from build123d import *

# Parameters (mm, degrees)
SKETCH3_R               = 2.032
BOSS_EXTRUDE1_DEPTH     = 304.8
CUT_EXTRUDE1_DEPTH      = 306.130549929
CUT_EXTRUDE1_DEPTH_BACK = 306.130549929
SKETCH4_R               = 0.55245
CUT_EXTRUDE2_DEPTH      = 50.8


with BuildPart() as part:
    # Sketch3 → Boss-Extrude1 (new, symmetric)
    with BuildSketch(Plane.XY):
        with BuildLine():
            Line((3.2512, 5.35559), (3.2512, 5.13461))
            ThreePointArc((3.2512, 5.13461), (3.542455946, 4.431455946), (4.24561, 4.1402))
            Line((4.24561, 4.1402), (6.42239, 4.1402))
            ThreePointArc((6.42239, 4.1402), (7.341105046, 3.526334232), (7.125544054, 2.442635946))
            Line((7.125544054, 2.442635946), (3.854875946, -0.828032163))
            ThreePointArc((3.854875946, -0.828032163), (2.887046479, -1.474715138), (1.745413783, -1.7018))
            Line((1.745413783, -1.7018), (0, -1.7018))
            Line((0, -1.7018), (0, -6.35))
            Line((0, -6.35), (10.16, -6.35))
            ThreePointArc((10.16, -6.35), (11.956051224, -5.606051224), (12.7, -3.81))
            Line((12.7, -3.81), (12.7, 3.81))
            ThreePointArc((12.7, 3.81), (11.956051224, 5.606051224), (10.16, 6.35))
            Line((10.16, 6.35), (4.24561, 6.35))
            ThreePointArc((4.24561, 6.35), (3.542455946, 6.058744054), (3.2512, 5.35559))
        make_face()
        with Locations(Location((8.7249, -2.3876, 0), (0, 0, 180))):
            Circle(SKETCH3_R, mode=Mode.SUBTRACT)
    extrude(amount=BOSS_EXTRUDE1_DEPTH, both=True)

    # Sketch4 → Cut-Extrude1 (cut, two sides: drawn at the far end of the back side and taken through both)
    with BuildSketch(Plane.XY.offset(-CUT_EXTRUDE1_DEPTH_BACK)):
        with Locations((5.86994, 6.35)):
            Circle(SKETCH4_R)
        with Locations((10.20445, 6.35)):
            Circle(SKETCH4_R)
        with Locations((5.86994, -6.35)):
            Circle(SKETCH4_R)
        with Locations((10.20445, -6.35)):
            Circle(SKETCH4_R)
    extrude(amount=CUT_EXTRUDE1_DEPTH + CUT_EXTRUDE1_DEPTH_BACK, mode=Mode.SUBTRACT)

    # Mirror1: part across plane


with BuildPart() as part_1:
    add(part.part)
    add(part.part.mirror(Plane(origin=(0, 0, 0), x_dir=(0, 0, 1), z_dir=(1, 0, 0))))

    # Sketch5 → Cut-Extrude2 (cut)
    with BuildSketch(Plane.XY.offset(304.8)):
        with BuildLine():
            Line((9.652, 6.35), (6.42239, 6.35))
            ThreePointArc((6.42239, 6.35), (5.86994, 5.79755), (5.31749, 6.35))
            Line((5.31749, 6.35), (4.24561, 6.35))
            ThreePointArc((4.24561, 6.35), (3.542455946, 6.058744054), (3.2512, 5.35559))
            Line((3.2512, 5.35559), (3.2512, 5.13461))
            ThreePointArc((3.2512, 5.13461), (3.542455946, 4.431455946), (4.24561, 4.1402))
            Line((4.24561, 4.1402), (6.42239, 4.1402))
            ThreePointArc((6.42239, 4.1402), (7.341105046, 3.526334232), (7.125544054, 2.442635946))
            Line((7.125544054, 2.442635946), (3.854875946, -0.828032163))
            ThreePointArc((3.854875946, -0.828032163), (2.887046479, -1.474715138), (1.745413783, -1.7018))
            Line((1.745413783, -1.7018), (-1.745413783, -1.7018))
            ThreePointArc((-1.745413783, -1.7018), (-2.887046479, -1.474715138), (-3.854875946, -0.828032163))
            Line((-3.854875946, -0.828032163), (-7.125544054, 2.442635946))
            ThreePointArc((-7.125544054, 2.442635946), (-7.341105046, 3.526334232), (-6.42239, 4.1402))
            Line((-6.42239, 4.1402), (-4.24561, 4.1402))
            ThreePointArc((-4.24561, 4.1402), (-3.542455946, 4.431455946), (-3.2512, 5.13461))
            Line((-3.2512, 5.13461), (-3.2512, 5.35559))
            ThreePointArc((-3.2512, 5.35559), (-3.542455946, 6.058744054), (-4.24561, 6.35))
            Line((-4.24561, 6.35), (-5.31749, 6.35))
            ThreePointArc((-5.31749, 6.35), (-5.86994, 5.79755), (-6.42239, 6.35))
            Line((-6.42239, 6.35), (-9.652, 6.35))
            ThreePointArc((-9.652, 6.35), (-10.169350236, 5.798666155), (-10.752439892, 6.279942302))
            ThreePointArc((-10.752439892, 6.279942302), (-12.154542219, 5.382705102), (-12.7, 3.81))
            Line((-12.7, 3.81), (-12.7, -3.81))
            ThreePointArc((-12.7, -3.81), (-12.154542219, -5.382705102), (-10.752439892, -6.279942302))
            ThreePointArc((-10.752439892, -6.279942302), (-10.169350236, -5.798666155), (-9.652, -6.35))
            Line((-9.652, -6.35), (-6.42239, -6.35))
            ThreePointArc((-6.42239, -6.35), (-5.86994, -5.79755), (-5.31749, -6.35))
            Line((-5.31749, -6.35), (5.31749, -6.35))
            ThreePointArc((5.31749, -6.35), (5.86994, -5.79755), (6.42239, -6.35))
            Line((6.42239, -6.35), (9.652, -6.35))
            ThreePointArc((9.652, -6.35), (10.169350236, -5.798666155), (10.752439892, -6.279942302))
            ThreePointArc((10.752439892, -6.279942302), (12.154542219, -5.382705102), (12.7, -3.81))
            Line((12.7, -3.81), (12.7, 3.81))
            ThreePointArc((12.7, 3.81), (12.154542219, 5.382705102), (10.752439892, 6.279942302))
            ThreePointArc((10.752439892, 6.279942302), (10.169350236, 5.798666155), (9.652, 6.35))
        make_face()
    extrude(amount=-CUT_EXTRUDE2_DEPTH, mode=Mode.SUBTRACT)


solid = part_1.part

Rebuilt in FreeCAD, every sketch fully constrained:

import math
import FreeCAD as App
import Part
import Sketcher
Q = App.Units.Quantity

doc = App.newDocument("Part")
body = doc.addObject("PartDesign::Body", "Body")

# Sketch on XY plane
sketch1 = body.newObject("Sketcher::SketchObject", "Sketch")
sketch1.AttachmentSupport = (doc.getObject("XY_Plane"), [""])
sketch1.MapMode = "FlatFace"
sketch1.addGeometry(Part.LineSegment(App.Vector(3.25, 5.36, 0), App.Vector(3.25, 5.13, 0)), False)
sketch1.addGeometry(Part.ArcOfCircle(Part.Circle(App.Vector(4.25, 5.13, 0), App.Vector(0, 0, 1), 0.99), math.radians(-180), math.radians(-90)), False)
sketch1.addGeometry(Part.LineSegment(App.Vector(4.25, 4.14, 0), App.Vector(6.42, 4.14, 0)), False)
sketch1.addGeometry(Part.ArcOfCircle(Part.Circle(App.Vector(6.42, 3.15, 0), App.Vector(0, 0, 1), 0.99), math.radians(-45), math.radians(90)), False)
sketch1.addGeometry(Part.LineSegment(App.Vector(7.13, 2.44, 0), App.Vector(3.85, -0.83, 0)), False)
sketch1.addGeometry(Part.ArcOfCircle(Part.Circle(App.Vector(1.75, 1.28, 0), App.Vector(0, 0, 1), 2.98), math.radians(-90), math.radians(-45)), False)
sketch1.addGeometry(Part.LineSegment(App.Vector(1.75, -1.7, 0), App.Vector(0, -1.7, 0)), False)
sketch1.addGeometry(Part.LineSegment(App.Vector(0, -1.7, 0), App.Vector(0, -6.35, 0)), False)
sketch1.addGeometry(Part.LineSegment(App.Vector(0, -6.35, 0), App.Vector(10.16, -6.35, 0)), False)
sketch1.addGeometry(Part.ArcOfCircle(Part.Circle(App.Vector(10.16, -3.81, 0), App.Vector(0, 0, 1), 2.54), math.radians(-90), math.radians(0)), False)
sketch1.addGeometry(Part.LineSegment(App.Vector(12.7, -3.81, 0), App.Vector(12.7, 3.81, 0)), False)
sketch1.addGeometry(Part.ArcOfCircle(Part.Circle(App.Vector(10.16, 3.81, 0), App.Vector(0, 0, 1), 2.54), math.radians(0), math.radians(90)), False)
sketch1.addGeometry(Part.LineSegment(App.Vector(10.16, 6.35, 0), App.Vector(4.25, 6.35, 0)), False)
sketch1.addGeometry(Part.ArcOfCircle(Part.Circle(App.Vector(4.25, 5.36, 0), App.Vector(0, 0, 1), 0.99), math.radians(90), math.radians(180)), False)
sketch1.addGeometry(Part.Circle(App.Vector(8.72, -2.39, 0), App.Vector(0, 0, 1), 2.03), False)
sketch1.addConstraint(Sketcher.Constraint("Tangent", 0, 2, 1, 1))
sketch1.addConstraint(Sketcher.Constraint("Tangent", 1, 2, 2, 1))
sketch1.addConstraint(Sketcher.Constraint("Tangent", 2, 2, 3, 2))
sketch1.addConstraint(Sketcher.Constraint("Tangent", 3, 1, 4, 1))
sketch1.addConstraint(Sketcher.Constraint("Tangent", 4, 2, 5, 2))
sketch1.addConstraint(Sketcher.Constraint("Tangent", 5, 1, 6, 1))
sketch1.addConstraint(Sketcher.Constraint("Coincident", 6, 2, 7, 1))
sketch1.addConstraint(Sketcher.Constraint("Coincident", 7, 2, 8, 1))
sketch1.addConstraint(Sketcher.Constraint("Tangent", 8, 2, 9, 1))
sketch1.addConstraint(Sketcher.Constraint("Tangent", 9, 2, 10, 1))
sketch1.addConstraint(Sketcher.Constraint("Tangent", 10, 2, 11, 1))
sketch1.addConstraint(Sketcher.Constraint("Tangent", 11, 2, 12, 1))
sketch1.addConstraint(Sketcher.Constraint("Tangent", 12, 2, 13, 1))
sketch1.addConstraint(Sketcher.Constraint("Tangent", 13, 2, 0, 1))
sketch1.addConstraint(Sketcher.Constraint("Vertical", 0))
sketch1.addConstraint(Sketcher.Constraint("Horizontal", 2))
sketch1.addConstraint(Sketcher.Constraint("Horizontal", 6))
sketch1.addConstraint(Sketcher.Constraint("Vertical", 7))
sketch1.addConstraint(Sketcher.Constraint("Horizontal", 8))
sketch1.addConstraint(Sketcher.Constraint("Vertical", 10))
sketch1.addConstraint(Sketcher.Constraint("Horizontal", 12))
sketch1.addConstraint(Sketcher.Constraint("Equal", 1, 3))
sketch1.addConstraint(Sketcher.Constraint("Equal", 9, 11))
sketch1.addConstraint(Sketcher.Constraint("Equal", 3, 13))
sketch1.addConstraint(Sketcher.Constraint("PointOnObject", 6, 2, -2))
sketch1.addConstraint(Sketcher.Constraint("Radius", 9, Q("0.1 in")))
sketch1.addConstraint(Sketcher.Constraint("Diameter", 14, Q("0.16 in")))
sketch1.addConstraint(Sketcher.Constraint("DistanceX", 8, 1, 8, 2, Q("0.4 in")))
sketch1.addConstraint(Sketcher.Constraint("DistanceY", 10, 1, 10, 2, Q("0.3 in")))
sketch1.addConstraint(Sketcher.Constraint("Angle", 4, Q("-135 deg")))
sketch1.addConstraint(Sketcher.Constraint("DistanceY", 7, 2, 7, 1, Q("0.183 in")))
sketch1.addConstraint(Sketcher.Constraint("DistanceY", 9, 3, -1, 1, Q("0.15 in")))
sketch1.addConstraint(Sketcher.Constraint("DistanceY", 5, 1, 1, 2, Q("0.23 in")))
sketch1.addConstraint(Sketcher.Constraint("DistanceX", 2, 1, 2, 2, Q("0.0857 in")))
sketch1.addConstraint(Sketcher.Constraint("DistanceY", 0, 2, 0, 1, Q("0.0087 in")))
sketch1.addConstraint(Sketcher.Constraint("DistanceY", 14, 3, -1, 1, Q("0.094 in")))
sketch1.addConstraint(Sketcher.Constraint("DistanceX", -1, 1, 0, 2, Q("0.128 in")))
sketch1.addConstraint(Sketcher.Constraint("Radius", 5, Q("2.98323 mm")))
sketch1.addConstraint(Sketcher.Constraint("DistanceX", -1, 1, 14, 3, Q("0.3435 in")))
pad1 = body.newObject("PartDesign::Pad", "Pad")
pad1.Profile = sketch1
pad1.Length = Q("24 in")
pad1.Midplane = True

# Sketch on XY plane
sketch2 = body.newObject("Sketcher::SketchObject", "Sketch001")
sketch2.AttachmentSupport = (doc.getObject("XY_Plane"), [""])
sketch2.MapMode = "FlatFace"
sketch2.addGeometry(Part.Circle(App.Vector(5.9, 6.3, 0), App.Vector(0, 0, 1), 0.6), False)
sketch2.addGeometry(Part.Circle(App.Vector(10.2, 6.3, 0), App.Vector(0, 0, 1), 0.6), False)
sketch2.addGeometry(Part.Circle(App.Vector(5.9, -6.3, 0), App.Vector(0, 0, 1), 0.6), False)
sketch2.addGeometry(Part.Circle(App.Vector(10.2, -6.3, 0), App.Vector(0, 0, 1), 0.6), False)
sketch2.addConstraint(Sketcher.Constraint("Equal", 0, 1))
sketch2.addConstraint(Sketcher.Constraint("Equal", 1, 2))
sketch2.addConstraint(Sketcher.Constraint("Equal", 2, 3))
sketch2.addConstraint(Sketcher.Constraint("Symmetric", 0, 3, 2, 3, -1))
sketch2.addConstraint(Sketcher.Constraint("Symmetric", 1, 3, 3, 3, -1))
sketch2.addConstraint(Sketcher.Constraint("Horizontal", 0, 3, 1, 3))
sketch2.addConstraint(Sketcher.Constraint("Diameter", 0, Q("0.0435 in")))
sketch2.addConstraint(Sketcher.Constraint("DistanceY", 2, 3, 0, 3, Q("0.5 in")))
sketch2.addConstraint(Sketcher.Constraint("DistanceX", -1, 1, 0, 3, Q("0.2311 in")))
sketch2.addConstraint(Sketcher.Constraint("DistanceX", -1, 1, 1, 3, Q("10.20445 mm")))
pocket1 = body.newObject("PartDesign::Pocket", "Pocket")
pocket1.Profile = sketch2
pocket1.Type = "ThroughAll"
pocket1.Midplane = True
body2 = doc.addObject("PartDesign::Body", "Body001")
doc.recompute()

body2.BaseFeature = body
doc.recompute()

mirroring = doc.addObject("Part::Mirroring", "Mirroring")
mirroring.Source = body
mirroring.Base = App.Vector(0, 0, 0)
mirroring.Normal = App.Vector(1, 0, 0)
body3 = doc.addObject("PartDesign::Body", "Body002")
body3.BaseFeature = mirroring
boolean = body2.newObject("PartDesign::Boolean", "Boolean")
boolean.Type = "Fuse"
boolean.addObjects([body3])
doc.recompute()

# Sketch on XY plane
sketch3 = body2.newObject("Sketcher::SketchObject", "Sketch002")
sketch3.AttachmentSupport = (doc.getObject("XY_Plane001"), [""])
sketch3.MapMode = "FlatFace"
sketch3.AttachmentOffset = App.Placement(App.Vector(0, 0, 12 * 25.4), App.Rotation())
sketch3.addGeometry(Part.LineSegment(App.Vector(9.65, 6.35, 0), App.Vector(6.42, 6.35, 0)), False)
sketch3.addGeometry(Part.ArcOfCircle(Part.Circle(App.Vector(5.87, 6.35, 0), App.Vector(0, 0, 1), 0.55), math.radians(180), math.radians(360)), False)
sketch3.addGeometry(Part.LineSegment(App.Vector(5.32, 6.35, 0), App.Vector(4.25, 6.35, 0)), False)
sketch3.addGeometry(Part.ArcOfCircle(Part.Circle(App.Vector(4.25, 5.36, 0), App.Vector(0, 0, 1), 0.99), math.radians(90), math.radians(180)), False)
sketch3.addGeometry(Part.LineSegment(App.Vector(3.25, 5.36, 0), App.Vector(3.25, 5.13, 0)), False)
sketch3.addGeometry(Part.ArcOfCircle(Part.Circle(App.Vector(4.25, 5.13, 0), App.Vector(0, 0, 1), 0.99), math.radians(-180), math.radians(-90)), False)
sketch3.addGeometry(Part.LineSegment(App.Vector(4.25, 4.14, 0), App.Vector(6.42, 4.14, 0)), False)
sketch3.addGeometry(Part.ArcOfCircle(Part.Circle(App.Vector(6.42, 3.15, 0), App.Vector(0, 0, 1), 0.99), math.radians(-45), math.radians(90)), False)
sketch3.addGeometry(Part.LineSegment(App.Vector(7.13, 2.44, 0), App.Vector(3.85, -0.83, 0)), False)
sketch3.addGeometry(Part.ArcOfCircle(Part.Circle(App.Vector(1.75, 1.28, 0), App.Vector(0, 0, 1), 2.98), math.radians(-90), math.radians(-45)), False)
sketch3.addGeometry(Part.LineSegment(App.Vector(1.75, -1.7, 0), App.Vector(-1.75, -1.7, 0)), False)
sketch3.addGeometry(Part.ArcOfCircle(Part.Circle(App.Vector(-1.75, 1.28, 0), App.Vector(0, 0, 1), 2.98), math.radians(-135), math.radians(-90)), False)
sketch3.addGeometry(Part.LineSegment(App.Vector(-3.85, -0.83, 0), App.Vector(-7.13, 2.44, 0)), False)
sketch3.addGeometry(Part.ArcOfCircle(Part.Circle(App.Vector(-6.42, 3.15, 0), App.Vector(0, 0, 1), 0.99), math.radians(90), math.radians(225)), False)
sketch3.addGeometry(Part.LineSegment(App.Vector(-6.42, 4.14, 0), App.Vector(-4.25, 4.14, 0)), False)
sketch3.addGeometry(Part.ArcOfCircle(Part.Circle(App.Vector(-4.25, 5.13, 0), App.Vector(0, 0, 1), 0.99), math.radians(-90), math.radians(0)), False)
sketch3.addGeometry(Part.LineSegment(App.Vector(-3.25, 5.13, 0), App.Vector(-3.25, 5.36, 0)), False)
sketch3.addGeometry(Part.ArcOfCircle(Part.Circle(App.Vector(-4.25, 5.36, 0), App.Vector(0, 0, 1), 0.99), math.radians(0), math.radians(90)), False)
sketch3.addGeometry(Part.LineSegment(App.Vector(-4.25, 6.35, 0), App.Vector(-5.32, 6.35, 0)), False)
sketch3.addGeometry(Part.ArcOfCircle(Part.Circle(App.Vector(-5.87, 6.35, 0), App.Vector(0, 0, 1), 0.55), math.radians(180), math.radians(360)), False)
sketch3.addGeometry(Part.LineSegment(App.Vector(-6.42, 6.35, 0), App.Vector(-9.65, 6.35, 0)), False)
sketch3.addGeometry(Part.ArcOfCircle(Part.Circle(App.Vector(-10.2, 6.35, 0), App.Vector(0, 0, 1), 0.55), math.radians(-173), math.radians(0)), False)
sketch3.addGeometry(Part.ArcOfCircle(Part.Circle(App.Vector(-10.16, 3.81, 0), App.Vector(0, 0, 1), 2.54), math.radians(103), math.radians(180)), False)
sketch3.addGeometry(Part.LineSegment(App.Vector(-12.7, 3.81, 0), App.Vector(-12.7, -3.81, 0)), False)
sketch3.addGeometry(Part.ArcOfCircle(Part.Circle(App.Vector(-10.16, -3.81, 0), App.Vector(0, 0, 1), 2.54), math.radians(180), math.radians(257)), False)
sketch3.addGeometry(Part.ArcOfCircle(Part.Circle(App.Vector(-10.2, -6.35, 0), App.Vector(0, 0, 1), 0.55), math.radians(0), math.radians(173)), False)
sketch3.addGeometry(Part.LineSegment(App.Vector(-9.65, -6.35, 0), App.Vector(-6.42, -6.35, 0)), False)
sketch3.addGeometry(Part.ArcOfCircle(Part.Circle(App.Vector(-5.87, -6.35, 0), App.Vector(0, 0, 1), 0.55), math.radians(0), math.radians(180)), False)
sketch3.addGeometry(Part.LineSegment(App.Vector(-5.32, -6.35, 0), App.Vector(5.32, -6.35, 0)), False)
sketch3.addGeometry(Part.ArcOfCircle(Part.Circle(App.Vector(5.87, -6.35, 0), App.Vector(0, 0, 1), 0.55), math.radians(0), math.radians(180)), False)
sketch3.addGeometry(Part.LineSegment(App.Vector(6.42, -6.35, 0), App.Vector(9.65, -6.35, 0)), False)
sketch3.addGeometry(Part.ArcOfCircle(Part.Circle(App.Vector(10.2, -6.35, 0), App.Vector(0, 0, 1), 0.55), math.radians(7), math.radians(180)), False)
sketch3.addGeometry(Part.ArcOfCircle(Part.Circle(App.Vector(10.16, -3.81, 0), App.Vector(0, 0, 1), 2.54), math.radians(-77), math.radians(0)), False)
sketch3.addGeometry(Part.LineSegment(App.Vector(12.7, -3.81, 0), App.Vector(12.7, 3.81, 0)), False)
sketch3.addGeometry(Part.ArcOfCircle(Part.Circle(App.Vector(10.16, 3.81, 0), App.Vector(0, 0, 1), 2.54), math.radians(0), math.radians(77)), False)
sketch3.addGeometry(Part.ArcOfCircle(Part.Circle(App.Vector(10.2, 6.35, 0), App.Vector(0, 0, 1), 0.55), math.radians(-180), math.radians(-7)), False)
sketch3.addConstraint(Sketcher.Constraint("Coincident", 0, 2, 1, 2))
sketch3.addConstraint(Sketcher.Constraint("Coincident", 1, 1, 2, 1))
sketch3.addConstraint(Sketcher.Constraint("Tangent", 2, 2, 3, 1))
sketch3.addConstraint(Sketcher.Constraint("Tangent", 3, 2, 4, 1))
sketch3.addConstraint(Sketcher.Constraint("Tangent", 4, 2, 5, 1))
sketch3.addConstraint(Sketcher.Constraint("Tangent", 5, 2, 6, 1))
sketch3.addConstraint(Sketcher.Constraint("Tangent", 6, 2, 7, 2))
sketch3.addConstraint(Sketcher.Constraint("Tangent", 7, 1, 8, 1))
sketch3.addConstraint(Sketcher.Constraint("Tangent", 8, 2, 9, 2))
sketch3.addConstraint(Sketcher.Constraint("Tangent", 9, 1, 10, 1))
sketch3.addConstraint(Sketcher.Constraint("Tangent", 10, 2, 11, 2))
sketch3.addConstraint(Sketcher.Constraint("Tangent", 11, 1, 12, 1))
sketch3.addConstraint(Sketcher.Constraint("Tangent", 12, 2, 13, 2))
sketch3.addConstraint(Sketcher.Constraint("Tangent", 13, 1, 14, 1))
sketch3.addConstraint(Sketcher.Constraint("Tangent", 14, 2, 15, 1))
sketch3.addConstraint(Sketcher.Constraint("Tangent", 15, 2, 16, 1))
sketch3.addConstraint(Sketcher.Constraint("Tangent", 16, 2, 17, 1))
sketch3.addConstraint(Sketcher.Constraint("Tangent", 17, 2, 18, 1))
sketch3.addConstraint(Sketcher.Constraint("Coincident", 18, 2, 19, 2))
sketch3.addConstraint(Sketcher.Constraint("Coincident", 19, 1, 20, 1))
sketch3.addConstraint(Sketcher.Constraint("Coincident", 20, 2, 21, 2))
sketch3.addConstraint(Sketcher.Constraint("Coincident", 21, 1, 22, 1))
sketch3.addConstraint(Sketcher.Constraint("Tangent", 22, 2, 23, 1))
sketch3.addConstraint(Sketcher.Constraint("Tangent", 23, 2, 24, 1))
sketch3.addConstraint(Sketcher.Constraint("Coincident", 24, 2, 25, 2))
sketch3.addConstraint(Sketcher.Constraint("Coincident", 25, 1, 26, 1))
sketch3.addConstraint(Sketcher.Constraint("Coincident", 26, 2, 27, 2))
sketch3.addConstraint(Sketcher.Constraint("Coincident", 27, 1, 28, 1))
sketch3.addConstraint(Sketcher.Constraint("Coincident", 28, 2, 29, 2))
sketch3.addConstraint(Sketcher.Constraint("Coincident", 29, 1, 30, 1))
sketch3.addConstraint(Sketcher.Constraint("Coincident", 30, 2, 31, 2))
sketch3.addConstraint(Sketcher.Constraint("Coincident", 31, 1, 32, 1))
sketch3.addConstraint(Sketcher.Constraint("Tangent", 32, 2, 33, 1))
sketch3.addConstraint(Sketcher.Constraint("Tangent", 33, 2, 34, 1))
sketch3.addConstraint(Sketcher.Constraint("Coincident", 34, 2, 35, 2))
sketch3.addConstraint(Sketcher.Constraint("Coincident", 35, 1, 0, 1))
sketch3.addConstraint(Sketcher.Constraint("Horizontal", 0))
sketch3.addConstraint(Sketcher.Constraint("Horizontal", 2))
sketch3.addConstraint(Sketcher.Constraint("Vertical", 4))
sketch3.addConstraint(Sketcher.Constraint("Horizontal", 6))
sketch3.addConstraint(Sketcher.Constraint("Horizontal", 10))
sketch3.addConstraint(Sketcher.Constraint("Horizontal", 14))
sketch3.addConstraint(Sketcher.Constraint("Vertical", 16))
sketch3.addConstraint(Sketcher.Constraint("Horizontal", 18))
sketch3.addConstraint(Sketcher.Constraint("Horizontal", 20))
sketch3.addConstraint(Sketcher.Constraint("Vertical", 23))
sketch3.addConstraint(Sketcher.Constraint("Horizontal", 26))
sketch3.addConstraint(Sketcher.Constraint("Horizontal", 28))
sketch3.addConstraint(Sketcher.Constraint("Horizontal", 30))
sketch3.addConstraint(Sketcher.Constraint("Vertical", 33))
sketch3.addConstraint(Sketcher.Constraint("Equal", 3, 5))
sketch3.addConstraint(Sketcher.Constraint("Equal", 5, 7))
sketch3.addConstraint(Sketcher.Constraint("Equal", 9, 11))
sketch3.addConstraint(Sketcher.Constraint("Equal", 7, 13))
sketch3.addConstraint(Sketcher.Constraint("Equal", 13, 15))
sketch3.addConstraint(Sketcher.Constraint("Equal", 15, 17))
sketch3.addConstraint(Sketcher.Constraint("Equal", 1, 19))
sketch3.addConstraint(Sketcher.Constraint("Equal", 19, 21))
sketch3.addConstraint(Sketcher.Constraint("Equal", 22, 24))
sketch3.addConstraint(Sketcher.Constraint("Equal", 21, 25))
sketch3.addConstraint(Sketcher.Constraint("Equal", 25, 27))
sketch3.addConstraint(Sketcher.Constraint("Equal", 27, 29))
sketch3.addConstraint(Sketcher.Constraint("Equal", 29, 31))
sketch3.addConstraint(Sketcher.Constraint("Equal", 24, 32))
sketch3.addConstraint(Sketcher.Constraint("Equal", 32, 34))
sketch3.addConstraint(Sketcher.Constraint("Equal", 31, 35))
sketch3.addConstraint(Sketcher.Constraint("Symmetric", 1, 3, 27, 3, -1, 1))
sketch3.addConstraint(Sketcher.Constraint("Symmetric", 19, 3, 29, 3, -1, 1))
sketch3.addConstraint(Sketcher.Constraint("Symmetric", 21, 3, 31, 3, -1, 1))
sketch3.addConstraint(Sketcher.Constraint("Symmetric", 22, 3, 32, 3, -1, 1))
sketch3.addConstraint(Sketcher.Constraint("Symmetric", 25, 3, 35, 3, -1, 1))
sketch3.addConstraint(Sketcher.Constraint("Symmetric", 7, 3, 13, 3, -2))
sketch3.addConstraint(Sketcher.Constraint("Symmetric", 3, 3, 17, 3, -2))
sketch3.addConstraint(Sketcher.Constraint("Symmetric", 1, 3, 19, 3, -2))
sketch3.addConstraint(Sketcher.Constraint("Symmetric", 25, 3, 31, 3, -2))
sketch3.addConstraint(Sketcher.Constraint("Perpendicular", 8, 12))
sketch3.addConstraint(Sketcher.Constraint("Horizontal", 19, 3, 21, 3))
sketch3.addConstraint(Sketcher.Constraint("Horizontal", 24, 3, 32, 3))
sketch3.addConstraint(Sketcher.Constraint("Horizontal", 22, 3, 34, 3))
sketch3.addConstraint(Sketcher.Constraint("Horizontal", 35, 3, 0, 2))
sketch3.addConstraint(Sketcher.Constraint("Horizontal", 0, 2, 1, 1))
sketch3.addConstraint(Sketcher.Constraint("Horizontal", 8, 2, 11, 1))
sketch3.addConstraint(Sketcher.Constraint("Horizontal", 18, 2, 19, 1))
sketch3.addConstraint(Sketcher.Constraint("Horizontal", 31, 3, 25, 1))
sketch3.addConstraint(Sketcher.Constraint("Horizontal", 26, 2, 27, 1))
sketch3.addConstraint(Sketcher.Constraint("Horizontal", 28, 2, 29, 1))
sketch3.addConstraint(Sketcher.Constraint("Vertical", 7, 3, 0, 2))
sketch3.addConstraint(Sketcher.Constraint("Radius", 22, Q("0.1 in")))
sketch3.addConstraint(Sketcher.Constraint("DistanceY", 23, 2, 23, 1, Q("0.3 in")))
sketch3.addConstraint(Sketcher.Constraint("DistanceX", 22, 3, -1, 1, Q("0.4 in")))
sketch3.addConstraint(Sketcher.Constraint("DistanceY", 22, 3, 21, 3, Q("0.1 in")))
sketch3.addConstraint(Sketcher.Constraint("DistanceX", 20, 2, -1, 1, Q("0.38 in")))
sketch3.addConstraint(Sketcher.Constraint("DistanceX", 13, 3, 5, 3, Q("0.42 in")))
sketch3.addConstraint(Sketcher.Constraint("DistanceY", 9, 1, 5, 2, Q("0.23 in")))
sketch3.addConstraint(Sketcher.Constraint("DistanceX", 2, 2, 2, 1, Q("0.0422 in")))
sketch3.addConstraint(Sketcher.Constraint("DistanceX", 6, 1, 6, 2, Q("0.0857 in")))
sketch3.addConstraint(Sketcher.Constraint("DistanceY", 4, 2, 4, 1, Q("0.0087 in")))
sketch3.addConstraint(Sketcher.Constraint("DistanceX", -1, 1, 3, 2, Q("0.128 in")))
sketch3.addConstraint(Sketcher.Constraint("Radius", 9, Q("2.98323 mm")))
pocket2 = body2.newObject("PartDesign::Pocket", "Pocket001")
pocket2.Profile = sketch3
pocket2.Length = Q("2 in")
mirroring.Visibility = False

doc.recompute()
